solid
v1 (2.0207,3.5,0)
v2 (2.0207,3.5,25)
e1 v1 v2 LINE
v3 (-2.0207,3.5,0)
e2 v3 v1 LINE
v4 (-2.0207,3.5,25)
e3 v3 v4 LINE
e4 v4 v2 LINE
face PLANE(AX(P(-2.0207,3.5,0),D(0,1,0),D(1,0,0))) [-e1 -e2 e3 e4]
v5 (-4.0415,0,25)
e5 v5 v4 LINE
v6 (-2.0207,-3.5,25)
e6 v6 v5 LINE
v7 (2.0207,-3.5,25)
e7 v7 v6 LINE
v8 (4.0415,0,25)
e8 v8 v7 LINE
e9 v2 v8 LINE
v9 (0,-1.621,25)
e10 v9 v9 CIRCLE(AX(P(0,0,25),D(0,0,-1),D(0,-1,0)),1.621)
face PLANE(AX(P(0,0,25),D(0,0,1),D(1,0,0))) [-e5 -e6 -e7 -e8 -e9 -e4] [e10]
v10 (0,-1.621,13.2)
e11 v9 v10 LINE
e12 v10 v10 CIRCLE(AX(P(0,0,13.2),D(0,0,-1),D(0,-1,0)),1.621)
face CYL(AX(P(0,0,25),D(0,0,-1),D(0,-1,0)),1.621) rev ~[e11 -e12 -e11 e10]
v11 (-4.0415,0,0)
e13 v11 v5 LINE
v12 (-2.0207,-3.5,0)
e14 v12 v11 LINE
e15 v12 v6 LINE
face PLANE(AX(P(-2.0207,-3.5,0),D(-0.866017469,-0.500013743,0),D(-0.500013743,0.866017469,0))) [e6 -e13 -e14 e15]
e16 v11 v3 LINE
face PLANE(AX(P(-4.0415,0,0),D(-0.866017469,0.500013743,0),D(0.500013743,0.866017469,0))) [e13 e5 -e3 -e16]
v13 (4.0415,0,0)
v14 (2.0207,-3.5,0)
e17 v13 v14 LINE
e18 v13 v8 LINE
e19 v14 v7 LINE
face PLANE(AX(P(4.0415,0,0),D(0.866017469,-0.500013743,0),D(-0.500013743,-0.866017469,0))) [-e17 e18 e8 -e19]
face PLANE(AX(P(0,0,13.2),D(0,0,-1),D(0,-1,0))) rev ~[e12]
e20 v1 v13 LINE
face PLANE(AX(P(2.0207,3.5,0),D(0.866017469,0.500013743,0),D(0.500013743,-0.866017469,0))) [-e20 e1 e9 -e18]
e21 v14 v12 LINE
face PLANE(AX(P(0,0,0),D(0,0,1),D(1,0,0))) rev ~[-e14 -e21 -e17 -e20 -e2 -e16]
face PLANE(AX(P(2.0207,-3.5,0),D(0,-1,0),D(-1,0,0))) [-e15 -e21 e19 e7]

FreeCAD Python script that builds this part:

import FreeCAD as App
import Part
import Sketcher
from FreeCAD import Vector
Q = App.Units.Quantity


def add_polygon(sketch, points):
    """Adds a closed chain of lines whose ends are joined by coincident constraints."""
    first, n = sketch.GeometryCount, len(points)
    for a, b in zip(points, points[1:] + points[:1]):
        sketch.addGeometry(Part.LineSegment(App.Vector(*a, 0), App.Vector(*b, 0)), False)
    for i in range(n):
        sketch.addConstraint(Sketcher.Constraint("Coincident", first + i, 2, first + (i + 1) % n, 1))

doc = App.newDocument("Part")
body = doc.addObject("PartDesign::Body", "Body")

# Sketch on XY plane
sketch1 = doc.addObject("Sketcher::SketchObject", "Sketch")
body.addObject(sketch1)
sketch1.AttachmentSupport = (doc.XY_Plane, [""])
sketch1.MapMode = "FlatFace"
add_polygon(sketch1, [(2, -3.5), (4, 0), (2, 3.5), (-2, 3.5), (-4, 0), (-2, -3.5)])  # lines 0-5
sketch1.addConstraint([
    Sketcher.Constraint("Horizontal", 2),
    Sketcher.Constraint("Horizontal", 5),
    Sketcher.Constraint("Symmetric", 0, 2, 3, 2, -1, 1),
    Sketcher.Constraint("Symmetric", 1, 2, 4, 2, -1, 1),
    Sketcher.Constraint("PointOnObject", 0, 2, -1),
    Sketcher.Constraint("Parallel", 0, 3),
    Sketcher.Constraint("Vertical", 2, 2, 4, 2),
    Sketcher.Constraint("DistanceY", 4, 2, 2, 2, 7.0),
    Sketcher.Constraint("Angle", 0, Q("59.999 deg")),
    Sketcher.Constraint("DistanceX", 2, 2, 2, 1, 4.0414),
])
pad1 = doc.addObject("PartDesign::Pad", "Pad")
body.addObject(pad1)
pad1.Profile = sketch1
pad1.Length = 25

# Sketch on XY plane
sketch2 = doc.addObject("Sketcher::SketchObject", "Sketch001")
body.addObject(sketch2)
sketch2.AttachmentSupport = (doc.XY_Plane, [""])
sketch2.MapMode = "FlatFace"
sketch2.AttachmentOffset = App.Placement(Vector(0, 0, 25), App.Rotation())
sketch2.addGeometry(Part.Circle(Vector(0, 0, 0), Vector(0, 0, 1), 1.6), False)
sketch2.addConstraint([
    Sketcher.Constraint("Coincident", 0, 3, -1, 1),
    Sketcher.Constraint("Diameter", 0, 3.242),
])
doc.recompute()
hole = doc.addObject("PartDesign::Hole", "Hole")
body.addObject(hole)
hole.Profile = sketch2
hole.ThreadType = "None"
hole.Diameter = 3.242
hole.DepthType = "Dimension"
hole.Depth = 11.8
hole.DrillPoint = "Flat"

doc.recompute()
